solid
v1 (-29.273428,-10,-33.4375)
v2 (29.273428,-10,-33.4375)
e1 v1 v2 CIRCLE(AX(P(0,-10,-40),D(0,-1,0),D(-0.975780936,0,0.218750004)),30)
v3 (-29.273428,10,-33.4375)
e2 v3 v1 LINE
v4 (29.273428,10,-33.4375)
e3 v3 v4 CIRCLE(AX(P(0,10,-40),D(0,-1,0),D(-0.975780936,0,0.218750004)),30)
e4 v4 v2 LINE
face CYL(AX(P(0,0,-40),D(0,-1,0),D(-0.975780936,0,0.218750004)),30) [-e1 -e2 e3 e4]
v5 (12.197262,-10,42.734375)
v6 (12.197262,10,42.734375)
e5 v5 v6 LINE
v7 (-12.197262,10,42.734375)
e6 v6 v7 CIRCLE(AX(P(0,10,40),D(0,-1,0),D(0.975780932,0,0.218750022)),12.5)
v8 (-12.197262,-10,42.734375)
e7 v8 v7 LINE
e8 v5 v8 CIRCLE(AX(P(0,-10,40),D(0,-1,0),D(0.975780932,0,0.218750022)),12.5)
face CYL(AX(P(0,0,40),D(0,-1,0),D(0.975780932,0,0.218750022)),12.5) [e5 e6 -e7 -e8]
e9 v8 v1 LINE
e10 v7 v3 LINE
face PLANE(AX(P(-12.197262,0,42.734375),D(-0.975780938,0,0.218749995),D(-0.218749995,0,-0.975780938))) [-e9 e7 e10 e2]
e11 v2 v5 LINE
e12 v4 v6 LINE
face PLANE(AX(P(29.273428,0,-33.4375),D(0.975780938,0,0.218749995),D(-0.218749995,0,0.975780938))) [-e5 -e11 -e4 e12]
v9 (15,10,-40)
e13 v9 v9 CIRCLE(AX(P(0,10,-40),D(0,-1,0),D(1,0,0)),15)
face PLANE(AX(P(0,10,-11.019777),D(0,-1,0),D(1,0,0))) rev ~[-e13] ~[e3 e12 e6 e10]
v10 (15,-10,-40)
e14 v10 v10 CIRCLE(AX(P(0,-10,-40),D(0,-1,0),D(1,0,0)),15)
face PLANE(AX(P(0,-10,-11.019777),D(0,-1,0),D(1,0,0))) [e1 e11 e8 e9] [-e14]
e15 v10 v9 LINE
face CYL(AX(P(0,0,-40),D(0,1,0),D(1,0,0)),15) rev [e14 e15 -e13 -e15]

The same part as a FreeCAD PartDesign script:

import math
import FreeCAD as App
import Part
import Sketcher

doc = App.newDocument("Part")
params = doc.addObject("Spreadsheet::Sheet", "Params")
for row, (alias, value) in enumerate([
    ("sketch1_diameter", "30 mm"),
    ("sketch1_radius", "30 mm"),
    ("sketch1_radius2", "12.5 mm"),
    ("pad1_length", "20 mm"),
], start=1):
    params.set(f"A{row}", alias)
    params.set(f"B{row}", "=" + value)
    params.setAlias(f"B{row}", alias)

body = doc.addObject("PartDesign::Body", "Body")

# Sketch on XZ plane
sketch1 = body.newObject("Sketcher::SketchObject", "Sketch")
sketch1.AttachmentSupport = (doc.getObject("XZ_Plane"), [""])
sketch1.MapMode = "FlatFace"
sketch1.addGeometry([
    Part.LineSegment(App.Vector(-12, 43, 0), App.Vector(-29, -33, 0)),  # 0
    Part.ArcOfCircle(Part.Circle(App.Vector(0, -40, 0), App.Vector(0, 0, 1), 30), math.radians(167), math.radians(373)),  # 1
    Part.LineSegment(App.Vector(29, -33, 0), App.Vector(12, 43, 0)),  # 2
    Part.ArcOfCircle(Part.Circle(App.Vector(0, 40, 0), App.Vector(0, 0, 1), 13), math.radians(13), math.radians(167)),  # 3
    Part.Circle(App.Vector(0, -40, 0), App.Vector(0, 0, 1), 15),  # 4
], False)
sketch1.addConstraint([
    Sketcher.Constraint("Tangent", 0, 2, 1, 1),
    Sketcher.Constraint("Tangent", 1, 2, 2, 1),
    Sketcher.Constraint("Tangent", 2, 2, 3, 1),
    Sketcher.Constraint("Tangent", 3, 2, 0, 1),
    Sketcher.Constraint("Coincident", 4, 3, 1, 3),
    Sketcher.Constraint("Symmetric", 1, 3, 3, 3, -1, 1),
    Sketcher.Constraint("PointOnObject", 1, 3, -2),
    Sketcher.Constraint("Diameter", 4, 30.0),
    Sketcher.Constraint("Radius", 1, 30.0),
    Sketcher.Constraint("Radius", 3, 12.5),
    Sketcher.Constraint("DistanceY", 1, 3, -1, 1, 40.0),
])
sketch1.setExpression("Constraints[7]", "Params.sketch1_diameter")
sketch1.setExpression("Constraints[8]", "Params.sketch1_radius")
sketch1.setExpression("Constraints[9]", "Params.sketch1_radius2")
pad1 = body.newObject("PartDesign::Pad", "Pad")
pad1.Profile = sketch1
pad1.setExpression("Length", "Params.pad1_length")
pad1.Midplane = True

doc.recompute()
